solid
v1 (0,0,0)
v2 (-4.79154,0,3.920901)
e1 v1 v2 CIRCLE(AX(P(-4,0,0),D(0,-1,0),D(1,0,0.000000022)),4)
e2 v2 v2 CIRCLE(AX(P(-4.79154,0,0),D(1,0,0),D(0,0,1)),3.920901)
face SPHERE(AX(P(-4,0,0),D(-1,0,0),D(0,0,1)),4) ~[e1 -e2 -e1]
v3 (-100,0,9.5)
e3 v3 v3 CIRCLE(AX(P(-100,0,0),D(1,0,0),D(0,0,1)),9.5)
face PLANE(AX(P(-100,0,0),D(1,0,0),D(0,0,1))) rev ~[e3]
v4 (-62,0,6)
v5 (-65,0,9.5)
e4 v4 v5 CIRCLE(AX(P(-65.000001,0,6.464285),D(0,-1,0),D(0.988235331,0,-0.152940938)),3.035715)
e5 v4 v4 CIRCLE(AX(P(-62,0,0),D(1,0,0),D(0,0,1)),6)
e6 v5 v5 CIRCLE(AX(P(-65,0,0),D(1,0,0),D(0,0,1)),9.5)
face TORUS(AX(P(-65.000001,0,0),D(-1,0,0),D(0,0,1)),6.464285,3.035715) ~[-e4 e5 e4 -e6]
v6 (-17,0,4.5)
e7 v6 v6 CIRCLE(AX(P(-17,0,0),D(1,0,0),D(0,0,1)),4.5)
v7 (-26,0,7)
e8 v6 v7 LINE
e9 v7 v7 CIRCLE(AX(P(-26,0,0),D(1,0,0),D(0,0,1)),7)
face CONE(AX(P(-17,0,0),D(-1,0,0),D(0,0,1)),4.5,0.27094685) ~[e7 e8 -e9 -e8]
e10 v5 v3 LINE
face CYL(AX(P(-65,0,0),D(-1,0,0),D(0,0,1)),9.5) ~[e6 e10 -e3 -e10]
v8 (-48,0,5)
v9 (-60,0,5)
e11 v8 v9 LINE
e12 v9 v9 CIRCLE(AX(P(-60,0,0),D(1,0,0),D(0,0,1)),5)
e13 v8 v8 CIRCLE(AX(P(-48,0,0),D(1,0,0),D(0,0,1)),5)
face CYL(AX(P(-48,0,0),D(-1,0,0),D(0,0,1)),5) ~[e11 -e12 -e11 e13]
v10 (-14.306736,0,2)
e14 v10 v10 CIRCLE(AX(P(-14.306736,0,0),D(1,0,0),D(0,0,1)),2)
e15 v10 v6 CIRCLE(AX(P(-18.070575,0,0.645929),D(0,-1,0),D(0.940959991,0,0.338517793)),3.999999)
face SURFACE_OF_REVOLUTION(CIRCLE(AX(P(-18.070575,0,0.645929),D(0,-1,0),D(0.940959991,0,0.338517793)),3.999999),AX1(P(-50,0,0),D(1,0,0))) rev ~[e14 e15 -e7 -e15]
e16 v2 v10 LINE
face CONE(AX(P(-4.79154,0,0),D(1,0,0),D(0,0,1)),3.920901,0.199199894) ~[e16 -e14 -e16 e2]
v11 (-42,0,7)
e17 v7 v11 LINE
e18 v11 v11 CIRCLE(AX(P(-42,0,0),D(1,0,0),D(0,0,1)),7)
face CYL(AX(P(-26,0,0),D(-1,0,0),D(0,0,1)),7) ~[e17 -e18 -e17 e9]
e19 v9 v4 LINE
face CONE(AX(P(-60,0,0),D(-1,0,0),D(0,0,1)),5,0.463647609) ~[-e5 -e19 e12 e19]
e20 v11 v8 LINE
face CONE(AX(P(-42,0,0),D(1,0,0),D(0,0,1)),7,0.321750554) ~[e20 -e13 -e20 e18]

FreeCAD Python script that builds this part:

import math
import FreeCAD as App
import Part
import Sketcher

V = App.Vector

doc = App.newDocument("Part")
body = doc.addObject("PartDesign::Body", "Body")

# Sketch on XZ plane
sketch1 = body.newObject("Sketcher::SketchObject", "Sketch")
sketch1.AttachmentSupport = (doc.getObject("XZ_Plane"), [""])
sketch1.MapMode = "FlatFace"
sketch1.addGeometry(Part.LineSegment(V(-100, 0, 0), V(0, 0, 0)), False)
sketch1.addGeometry(Part.ArcOfCircle(Part.Circle(V(-4, 0, 0), V(0, 0, 1), 4), math.radians(0), math.radians(101)), False)
sketch1.addGeometry(Part.LineSegment(V(-4.8, 3.9, 0), V(-14.3, 2, 0)), False)
sketch1.addGeometry(Part.ArcOfCircle(Part.Circle(V(-18.1, 0.6, 0), V(0, 0, 1), 4), math.radians(20), math.radians(74)), False)
sketch1.addGeometry(Part.LineSegment(V(-17, 4.5, 0), V(-26, 7, 0)), False)
sketch1.addGeometry(Part.LineSegment(V(-26, 7, 0), V(-42, 7, 0)), False)
sketch1.addGeometry(Part.LineSegment(V(-42, 7, 0), V(-48, 5, 0)), False)
sketch1.addGeometry(Part.LineSegment(V(-48, 5, 0), V(-60, 5, 0)), False)
sketch1.addGeometry(Part.LineSegment(V(-60, 5, 0), V(-62, 6, 0)), False)
sketch1.addGeometry(Part.ArcOfCircle(Part.Circle(V(-65, 6.5, 0), V(0, 0, 1), 3), math.radians(-9), math.radians(90)), False)
sketch1.addGeometry(Part.LineSegment(V(-65, 9.5, 0), V(-100, 9.5, 0)), False)
sketch1.addGeometry(Part.LineSegment(V(-100, 9.5, 0), V(-100, 0, 0)), False)
sketch1.addConstraint(Sketcher.Constraint("Coincident", 0, 2, 1, 1))
sketch1.addConstraint(Sketcher.Constraint("Tangent", 1, 2, 2, 1))
sketch1.addConstraint(Sketcher.Constraint("Coincident", 2, 2, 3, 1))
sketch1.addConstraint(Sketcher.Constraint("Tangent", 3, 2, 4, 1))
sketch1.addConstraint(Sketcher.Constraint("Coincident", 4, 2, 5, 1))
sketch1.addConstraint(Sketcher.Constraint("Coincident", 5, 2, 6, 1))
sketch1.addConstraint(Sketcher.Constraint("Coincident", 6, 2, 7, 1))
sketch1.addConstraint(Sketcher.Constraint("Coincident", 7, 2, 8, 1))
sketch1.addConstraint(Sketcher.Constraint("Coincident", 8, 2, 9, 1))
sketch1.addConstraint(Sketcher.Constraint("Tangent", 9, 2, 10, 1))
sketch1.addConstraint(Sketcher.Constraint("Coincident", 10, 2, 11, 1))
sketch1.addConstraint(Sketcher.Constraint("Coincident", 11, 2, 0, 1))
sketch1.addConstraint(Sketcher.Constraint("Horizontal", 0))
sketch1.addConstraint(Sketcher.Constraint("Horizontal", 5))
sketch1.addConstraint(Sketcher.Constraint("Horizontal", 7))
sketch1.addConstraint(Sketcher.Constraint("Horizontal", 10))
sketch1.addConstraint(Sketcher.Constraint("Vertical", 11))
sketch1.addConstraint(Sketcher.Constraint("Coincident", 0, 2, -1, 1))
sketch1.addConstraint(Sketcher.Constraint("Equal", 1, 3))
sketch1.addConstraint(Sketcher.Constraint("PointOnObject", 1, 3, -1))
sketch1.addConstraint(Sketcher.Constraint("Radius", 1, 4.0))
sketch1.addConstraint(Sketcher.Constraint("DistanceX", 0, 1, 0, 2, 100.0))
sketch1.addConstraint(Sketcher.Constraint("DistanceX", 5, 2, 5, 1, 16.0))
sketch1.addConstraint(Sketcher.Constraint("DistanceX", 7, 2, 7, 1, 12.0))
sketch1.addConstraint(Sketcher.Constraint("DistanceX", 10, 2, 10, 1, 35.0))
sketch1.addConstraint(Sketcher.Constraint("DistanceY", 11, 2, 11, 1, 9.5))
sketch1.addConstraint(Sketcher.Constraint("DistanceY", -1, 1, 2, 2, 2.0))
sketch1.addConstraint(Sketcher.Constraint("DistanceX", 3, 2, -1, 1, 17.0))
sketch1.addConstraint(Sketcher.Constraint("DistanceX", 4, 2, -1, 1, 26.0))
sketch1.addConstraint(Sketcher.Constraint("DistanceY", -1, 1, 4, 2, 7.0))
sketch1.addConstraint(Sketcher.Constraint("DistanceX", 6, 2, -1, 1, 48.0))
sketch1.addConstraint(Sketcher.Constraint("DistanceY", -1, 1, 6, 2, 5.0))
sketch1.addConstraint(Sketcher.Constraint("DistanceX", 8, 2, -1, 1, 62.0))
sketch1.addConstraint(Sketcher.Constraint("DistanceY", -1, 1, 8, 2, 6.0))
sketch1.addConstraint(Sketcher.Constraint("DistanceY", -1, 1, 3, 2, 4.5))
revolution = body.newObject("PartDesign::Revolution", "Revolution")
revolution.Profile = sketch1
revolution.ReferenceAxis = (sketch1, ["H_Axis"])
revolution.Angle = 360

doc.recompute()
